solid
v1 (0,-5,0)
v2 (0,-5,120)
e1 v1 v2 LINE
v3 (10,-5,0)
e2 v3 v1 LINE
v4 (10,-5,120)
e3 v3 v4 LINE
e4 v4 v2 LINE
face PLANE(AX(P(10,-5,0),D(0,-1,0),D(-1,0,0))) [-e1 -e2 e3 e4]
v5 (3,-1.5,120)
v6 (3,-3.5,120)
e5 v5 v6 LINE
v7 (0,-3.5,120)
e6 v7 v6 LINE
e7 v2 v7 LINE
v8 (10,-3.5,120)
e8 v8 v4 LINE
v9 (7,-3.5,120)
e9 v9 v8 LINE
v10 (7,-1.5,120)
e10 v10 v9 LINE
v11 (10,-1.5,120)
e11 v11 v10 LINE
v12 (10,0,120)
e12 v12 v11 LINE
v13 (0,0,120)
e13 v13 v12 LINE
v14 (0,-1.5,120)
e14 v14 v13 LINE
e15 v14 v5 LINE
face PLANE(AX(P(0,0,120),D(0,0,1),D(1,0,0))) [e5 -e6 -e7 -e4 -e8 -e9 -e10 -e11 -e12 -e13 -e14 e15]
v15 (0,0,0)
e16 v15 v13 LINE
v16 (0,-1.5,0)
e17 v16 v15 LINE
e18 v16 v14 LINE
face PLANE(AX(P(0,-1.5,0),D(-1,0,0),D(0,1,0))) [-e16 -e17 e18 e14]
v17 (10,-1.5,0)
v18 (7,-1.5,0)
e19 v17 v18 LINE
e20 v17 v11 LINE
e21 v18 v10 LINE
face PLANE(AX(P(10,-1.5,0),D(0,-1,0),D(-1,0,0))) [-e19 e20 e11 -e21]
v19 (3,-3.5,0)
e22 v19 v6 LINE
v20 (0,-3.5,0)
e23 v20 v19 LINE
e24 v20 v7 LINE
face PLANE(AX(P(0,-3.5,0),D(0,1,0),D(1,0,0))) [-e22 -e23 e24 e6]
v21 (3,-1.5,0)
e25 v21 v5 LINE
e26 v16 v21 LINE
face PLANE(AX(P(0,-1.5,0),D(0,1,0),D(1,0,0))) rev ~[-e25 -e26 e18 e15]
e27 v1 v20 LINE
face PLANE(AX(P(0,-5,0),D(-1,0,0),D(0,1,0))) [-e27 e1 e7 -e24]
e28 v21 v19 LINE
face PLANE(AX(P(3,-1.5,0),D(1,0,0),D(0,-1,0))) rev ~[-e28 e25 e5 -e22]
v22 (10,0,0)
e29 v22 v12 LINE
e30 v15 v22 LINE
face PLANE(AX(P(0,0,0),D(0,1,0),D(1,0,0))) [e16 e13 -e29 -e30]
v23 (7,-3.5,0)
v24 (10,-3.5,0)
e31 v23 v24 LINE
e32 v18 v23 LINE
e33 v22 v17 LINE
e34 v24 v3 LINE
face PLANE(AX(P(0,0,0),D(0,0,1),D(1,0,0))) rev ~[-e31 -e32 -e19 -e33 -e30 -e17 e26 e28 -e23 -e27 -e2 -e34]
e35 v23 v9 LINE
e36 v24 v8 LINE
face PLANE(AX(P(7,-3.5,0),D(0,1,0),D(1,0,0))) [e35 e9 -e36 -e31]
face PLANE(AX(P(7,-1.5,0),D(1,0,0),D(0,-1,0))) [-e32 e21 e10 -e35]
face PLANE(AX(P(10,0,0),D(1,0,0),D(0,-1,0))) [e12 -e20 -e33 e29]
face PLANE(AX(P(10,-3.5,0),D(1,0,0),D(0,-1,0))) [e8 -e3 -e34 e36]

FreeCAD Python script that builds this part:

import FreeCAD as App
import Part
import Sketcher

V = App.Vector


def add_polygon(sketch, points):
    """Adds a closed chain of lines whose ends are joined by coincident constraints."""
    first, n = sketch.GeometryCount, len(points)
    for a, b in zip(points, points[1:] + points[:1]):
        sketch.addGeometry(Part.LineSegment(App.Vector(*a, 0), App.Vector(*b, 0)), False)
    for i in range(n):
        sketch.addConstraint(Sketcher.Constraint("Coincident", first + i, 2, first + (i + 1) % n, 1))

doc = App.newDocument("Part")
body = doc.addObject("PartDesign::Body", "Body")

sketch1 = body.newObject("Sketcher::SketchObject", "Sketch")
sketch1.AttachmentSupport = (doc.getObject("XY_Plane"), [""])
sketch1.MapMode = "FlatFace"
add_polygon(sketch1, [(10, 0), (0, 0), (0, -1.5), (3, -1.5), (3, -3.5), (0, -3.5), (0, -5), (10, -5), (10, -3.5), (7, -3.5), (7, -1.5), (10, -1.5)])
sketch1.addConstraint([
    Sketcher.Constraint("Horizontal", 0),
    Sketcher.Constraint("Vertical", 1),
    Sketcher.Constraint("Horizontal", 2),
    Sketcher.Constraint("Vertical", 3),
    Sketcher.Constraint("Horizontal", 4),
    Sketcher.Constraint("Vertical", 5),
    Sketcher.Constraint("Horizontal", 6),
    Sketcher.Constraint("Vertical", 7),
    Sketcher.Constraint("Horizontal", 8),
    Sketcher.Constraint("Vertical", 9),
    Sketcher.Constraint("Horizontal", 10),
    Sketcher.Constraint("Vertical", 11),
    Sketcher.Constraint("Coincident", 0, 2, -1, 1),
    Sketcher.Constraint("PointOnObject", 4, 2, -2),
    Sketcher.Constraint("Horizontal", 4, 2, 7, 2),
    Sketcher.Constraint("Horizontal", 2, 2, 9, 2),
    Sketcher.Constraint("Vertical", 7, 2, 10, 2),
    Sketcher.Constraint("Equal", 4, 8),
    Sketcher.Constraint("Equal", 1, 5),
    Sketcher.Constraint("DistanceX", 0, 2, 0, 1, 10.0),
    Sketcher.Constraint("DistanceX", 2, 1, 2, 2, 3.0),
    Sketcher.Constraint("DistanceY", 3, 2, 3, 1, 2.0),
    Sketcher.Constraint("DistanceY", 1, 2, 1, 1, 1.5),
])
pad1 = body.newObject("PartDesign::Pad", "Pad")
pad1.Profile = sketch1
pad1.Length = 120

doc.recompute()
